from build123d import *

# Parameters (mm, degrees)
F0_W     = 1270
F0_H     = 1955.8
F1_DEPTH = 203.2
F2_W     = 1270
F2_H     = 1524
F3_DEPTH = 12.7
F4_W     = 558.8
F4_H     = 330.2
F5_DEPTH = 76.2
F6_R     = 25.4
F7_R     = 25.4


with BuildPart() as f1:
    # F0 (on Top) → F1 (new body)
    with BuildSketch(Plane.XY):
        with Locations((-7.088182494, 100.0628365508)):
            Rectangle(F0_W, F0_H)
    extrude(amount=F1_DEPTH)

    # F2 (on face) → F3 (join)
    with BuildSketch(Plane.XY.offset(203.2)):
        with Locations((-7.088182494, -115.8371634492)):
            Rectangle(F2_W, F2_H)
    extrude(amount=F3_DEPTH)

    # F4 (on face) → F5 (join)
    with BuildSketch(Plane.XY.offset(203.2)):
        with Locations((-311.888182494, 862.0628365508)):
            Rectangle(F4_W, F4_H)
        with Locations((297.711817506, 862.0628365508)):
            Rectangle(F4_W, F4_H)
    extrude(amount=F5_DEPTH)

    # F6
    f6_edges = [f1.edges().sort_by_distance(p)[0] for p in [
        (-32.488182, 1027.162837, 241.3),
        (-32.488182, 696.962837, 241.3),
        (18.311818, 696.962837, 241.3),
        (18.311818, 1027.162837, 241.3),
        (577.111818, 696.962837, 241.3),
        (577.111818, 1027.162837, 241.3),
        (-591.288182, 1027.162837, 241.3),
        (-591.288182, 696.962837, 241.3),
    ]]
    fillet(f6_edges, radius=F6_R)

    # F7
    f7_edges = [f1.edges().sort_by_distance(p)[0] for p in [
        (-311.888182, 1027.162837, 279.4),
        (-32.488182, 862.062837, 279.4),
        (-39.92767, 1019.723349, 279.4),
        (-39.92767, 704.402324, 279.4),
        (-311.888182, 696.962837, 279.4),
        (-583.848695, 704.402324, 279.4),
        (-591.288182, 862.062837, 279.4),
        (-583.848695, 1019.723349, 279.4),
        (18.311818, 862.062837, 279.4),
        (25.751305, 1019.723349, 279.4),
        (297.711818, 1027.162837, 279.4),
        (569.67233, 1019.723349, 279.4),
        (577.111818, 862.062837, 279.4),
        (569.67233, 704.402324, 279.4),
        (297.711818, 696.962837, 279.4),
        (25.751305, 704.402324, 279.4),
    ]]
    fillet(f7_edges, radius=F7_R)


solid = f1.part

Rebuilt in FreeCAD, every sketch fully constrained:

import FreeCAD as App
import Part
import Sketcher
Q = App.Units.Quantity


def edges_at(feature, points):
    """Names of the edges that pass closest to the given points."""
    edges = feature.Shape.Edges
    near = lambda p: min(range(len(edges)), key=lambda i: edges[i].distToShape(Part.Vertex(*p))[0])
    return sorted({f"Edge{near(p) + 1}" for p in points})


def add_polygon(sketch, points):
    """Adds a closed chain of lines whose ends are joined by coincident constraints."""
    first, n = sketch.GeometryCount, len(points)
    for a, b in zip(points, points[1:] + points[:1]):
        sketch.addGeometry(Part.LineSegment(App.Vector(*a, 0), App.Vector(*b, 0)), False)
    for i in range(n):
        sketch.addConstraint(Sketcher.Constraint("Coincident", first + i, 2, first + (i + 1) % n, 1))

doc = App.newDocument("Part")
body = doc.addObject("PartDesign::Body", "Body")

# Sketch on XY plane
sketch1 = doc.addObject("Sketcher::SketchObject", "Sketch")
body.addObject(sketch1)
sketch1.AttachmentSupport = (doc.XY_Plane, [""])
sketch1.MapMode = "FlatFace"
add_polygon(sketch1, [(-642.088182, 1077.962837), (-642.088182, -877.837163), (627.911818, -877.837163), (627.911818, 1077.962837)])  # lines 0-3
sketch1.addConstraint(Sketcher.Constraint("Vertical", 0))
sketch1.addConstraint(Sketcher.Constraint("Horizontal", 1))
sketch1.addConstraint(Sketcher.Constraint("Vertical", 2))
sketch1.addConstraint(Sketcher.Constraint("Horizontal", 3))
sketch1.addConstraint(Sketcher.Constraint("DistanceX", 1, 1, 1, 2, Q("50 in")))
sketch1.addConstraint(Sketcher.Constraint("DistanceY", 0, 2, 0, 1, Q("77 in")))
sketch1.addConstraint(Sketcher.Constraint("DistanceX", 0, 2, -1, 1, Q("642.088182 mm")))
sketch1.addConstraint(Sketcher.Constraint("DistanceY", 0, 2, -1, 1, Q("877.837163 mm")))
pad1 = doc.addObject("PartDesign::Pad", "Pad")
body.addObject(pad1)
pad1.Profile = sketch1
pad1.Length = Q("8 in")

# Sketch on XY plane
sketch2 = doc.addObject("Sketcher::SketchObject", "Sketch001")
body.addObject(sketch2)
sketch2.AttachmentSupport = (doc.XY_Plane, [""])
sketch2.MapMode = "FlatFace"
sketch2.AttachmentOffset = App.Placement(App.Vector(0, 0, 8 * 25.4), App.Rotation())
add_polygon(sketch2, [(-642.088182, 646.162837), (-642.088182, -877.837163), (627.911818, -877.837163), (627.911818, 646.162837)])  # lines 0-3
sketch2.addConstraint(Sketcher.Constraint("Vertical", 0))
sketch2.addConstraint(Sketcher.Constraint("Horizontal", 1))
sketch2.addConstraint(Sketcher.Constraint("Vertical", 2))
sketch2.addConstraint(Sketcher.Constraint("Horizontal", 3))
sketch2.addConstraint(Sketcher.Constraint("DistanceX", 1, 1, 1, 2, Q("50 in")))
sketch2.addConstraint(Sketcher.Constraint("DistanceY", 0, 2, 0, 1, Q("60 in")))
sketch2.addConstraint(Sketcher.Constraint("DistanceX", 0, 2, -1, 1, Q("642.088182 mm")))
sketch2.addConstraint(Sketcher.Constraint("DistanceY", 0, 2, -1, 1, Q("877.837163 mm")))
pad2 = doc.addObject("PartDesign::Pad", "Pad001")
body.addObject(pad2)
pad2.Profile = sketch2
pad2.Length = Q("0.5 in")

# Sketch on XY plane
sketch3 = doc.addObject("Sketcher::SketchObject", "Sketch002")
body.addObject(sketch3)
sketch3.AttachmentSupport = (doc.XY_Plane, [""])
sketch3.MapMode = "FlatFace"
sketch3.AttachmentOffset = App.Placement(App.Vector(0, 0, 8 * 25.4), App.Rotation())
add_polygon(sketch3, [(-591.288182, 1027.162837), (-591.288182, 696.962837), (-32.488182, 696.962837), (-32.488182, 1027.162837)])  # lines 0-3
add_polygon(sketch3, [(18.311818, 1027.162837), (18.311818, 696.962837), (577.111818, 696.962837), (577.111818, 1027.162837)])  # lines 4-7
sketch3.addConstraint(Sketcher.Constraint("Vertical", 0))
sketch3.addConstraint(Sketcher.Constraint("Horizontal", 1))
sketch3.addConstraint(Sketcher.Constraint("Vertical", 2))
sketch3.addConstraint(Sketcher.Constraint("Horizontal", 3))
sketch3.addConstraint(Sketcher.Constraint("Vertical", 4))
sketch3.addConstraint(Sketcher.Constraint("Horizontal", 5))
sketch3.addConstraint(Sketcher.Constraint("Vertical", 6))
sketch3.addConstraint(Sketcher.Constraint("Horizontal", 7))
sketch3.addConstraint(Sketcher.Constraint("Horizontal", 1, 2, 4, 2))
sketch3.addConstraint(Sketcher.Constraint("Horizontal", 3, 2, 6, 2))
sketch3.addConstraint(Sketcher.Constraint("Equal", 3, 5))
sketch3.addConstraint(Sketcher.Constraint("DistanceX", 1, 1, 1, 2, Q("22 in")))
sketch3.addConstraint(Sketcher.Constraint("DistanceY", 0, 2, 0, 1, Q("13 in")))
sketch3.addConstraint(Sketcher.Constraint("DistanceX", 1, 2, 4, 2, Q("2 in")))
sketch3.addConstraint(Sketcher.Constraint("DistanceX", 0, 2, -1, 1, Q("591.288182 mm")))
sketch3.addConstraint(Sketcher.Constraint("DistanceY", -1, 1, 0, 2, Q("696.962837 mm")))
pad3 = doc.addObject("PartDesign::Pad", "Pad002")
body.addObject(pad3)
pad3.Profile = sketch3
pad3.Length = Q("3 in")
doc.recompute()

fillet = doc.addObject("PartDesign::Fillet", "Fillet")
body.addObject(fillet)
fillet.Base = (pad3, edges_at(pad3, [
    (-32.488, 1027.163, 241.3),
    (-32.488, 696.963, 241.3),
    (18.312, 696.963, 241.3),
    (18.312, 1027.163, 241.3),
    (577.112, 696.963, 241.3),
    (577.112, 1027.163, 241.3),
    (-591.288, 1027.163, 241.3),
    (-591.288, 696.963, 241.3),
]))
fillet.Radius = Q("1 in")
doc.recompute()

fillet2 = doc.addObject("PartDesign::Fillet", "Fillet001")
body.addObject(fillet2)
fillet2.Base = (fillet, edges_at(fillet, [
    (-311.888, 1027.163, 279.4),
    (-32.488, 862.063, 279.4),
    (-39.928, 1019.723, 279.4),
    (-39.928, 704.402, 279.4),
    (-311.888, 696.963, 279.4),
    (-583.849, 704.402, 279.4),
    (-591.288, 862.063, 279.4),
    (-583.849, 1019.723, 279.4),
    (18.312, 862.063, 279.4),
    (25.751, 1019.723, 279.4),
    (297.712, 1027.163, 279.4),
    (569.672, 1019.723, 279.4),
    (577.112, 862.063, 279.4),
    (569.672, 704.402, 279.4),
    (297.712, 696.963, 279.4),
    (25.751, 704.402, 279.4),
]))
fillet2.Radius = Q("1 in")

doc.recompute()
